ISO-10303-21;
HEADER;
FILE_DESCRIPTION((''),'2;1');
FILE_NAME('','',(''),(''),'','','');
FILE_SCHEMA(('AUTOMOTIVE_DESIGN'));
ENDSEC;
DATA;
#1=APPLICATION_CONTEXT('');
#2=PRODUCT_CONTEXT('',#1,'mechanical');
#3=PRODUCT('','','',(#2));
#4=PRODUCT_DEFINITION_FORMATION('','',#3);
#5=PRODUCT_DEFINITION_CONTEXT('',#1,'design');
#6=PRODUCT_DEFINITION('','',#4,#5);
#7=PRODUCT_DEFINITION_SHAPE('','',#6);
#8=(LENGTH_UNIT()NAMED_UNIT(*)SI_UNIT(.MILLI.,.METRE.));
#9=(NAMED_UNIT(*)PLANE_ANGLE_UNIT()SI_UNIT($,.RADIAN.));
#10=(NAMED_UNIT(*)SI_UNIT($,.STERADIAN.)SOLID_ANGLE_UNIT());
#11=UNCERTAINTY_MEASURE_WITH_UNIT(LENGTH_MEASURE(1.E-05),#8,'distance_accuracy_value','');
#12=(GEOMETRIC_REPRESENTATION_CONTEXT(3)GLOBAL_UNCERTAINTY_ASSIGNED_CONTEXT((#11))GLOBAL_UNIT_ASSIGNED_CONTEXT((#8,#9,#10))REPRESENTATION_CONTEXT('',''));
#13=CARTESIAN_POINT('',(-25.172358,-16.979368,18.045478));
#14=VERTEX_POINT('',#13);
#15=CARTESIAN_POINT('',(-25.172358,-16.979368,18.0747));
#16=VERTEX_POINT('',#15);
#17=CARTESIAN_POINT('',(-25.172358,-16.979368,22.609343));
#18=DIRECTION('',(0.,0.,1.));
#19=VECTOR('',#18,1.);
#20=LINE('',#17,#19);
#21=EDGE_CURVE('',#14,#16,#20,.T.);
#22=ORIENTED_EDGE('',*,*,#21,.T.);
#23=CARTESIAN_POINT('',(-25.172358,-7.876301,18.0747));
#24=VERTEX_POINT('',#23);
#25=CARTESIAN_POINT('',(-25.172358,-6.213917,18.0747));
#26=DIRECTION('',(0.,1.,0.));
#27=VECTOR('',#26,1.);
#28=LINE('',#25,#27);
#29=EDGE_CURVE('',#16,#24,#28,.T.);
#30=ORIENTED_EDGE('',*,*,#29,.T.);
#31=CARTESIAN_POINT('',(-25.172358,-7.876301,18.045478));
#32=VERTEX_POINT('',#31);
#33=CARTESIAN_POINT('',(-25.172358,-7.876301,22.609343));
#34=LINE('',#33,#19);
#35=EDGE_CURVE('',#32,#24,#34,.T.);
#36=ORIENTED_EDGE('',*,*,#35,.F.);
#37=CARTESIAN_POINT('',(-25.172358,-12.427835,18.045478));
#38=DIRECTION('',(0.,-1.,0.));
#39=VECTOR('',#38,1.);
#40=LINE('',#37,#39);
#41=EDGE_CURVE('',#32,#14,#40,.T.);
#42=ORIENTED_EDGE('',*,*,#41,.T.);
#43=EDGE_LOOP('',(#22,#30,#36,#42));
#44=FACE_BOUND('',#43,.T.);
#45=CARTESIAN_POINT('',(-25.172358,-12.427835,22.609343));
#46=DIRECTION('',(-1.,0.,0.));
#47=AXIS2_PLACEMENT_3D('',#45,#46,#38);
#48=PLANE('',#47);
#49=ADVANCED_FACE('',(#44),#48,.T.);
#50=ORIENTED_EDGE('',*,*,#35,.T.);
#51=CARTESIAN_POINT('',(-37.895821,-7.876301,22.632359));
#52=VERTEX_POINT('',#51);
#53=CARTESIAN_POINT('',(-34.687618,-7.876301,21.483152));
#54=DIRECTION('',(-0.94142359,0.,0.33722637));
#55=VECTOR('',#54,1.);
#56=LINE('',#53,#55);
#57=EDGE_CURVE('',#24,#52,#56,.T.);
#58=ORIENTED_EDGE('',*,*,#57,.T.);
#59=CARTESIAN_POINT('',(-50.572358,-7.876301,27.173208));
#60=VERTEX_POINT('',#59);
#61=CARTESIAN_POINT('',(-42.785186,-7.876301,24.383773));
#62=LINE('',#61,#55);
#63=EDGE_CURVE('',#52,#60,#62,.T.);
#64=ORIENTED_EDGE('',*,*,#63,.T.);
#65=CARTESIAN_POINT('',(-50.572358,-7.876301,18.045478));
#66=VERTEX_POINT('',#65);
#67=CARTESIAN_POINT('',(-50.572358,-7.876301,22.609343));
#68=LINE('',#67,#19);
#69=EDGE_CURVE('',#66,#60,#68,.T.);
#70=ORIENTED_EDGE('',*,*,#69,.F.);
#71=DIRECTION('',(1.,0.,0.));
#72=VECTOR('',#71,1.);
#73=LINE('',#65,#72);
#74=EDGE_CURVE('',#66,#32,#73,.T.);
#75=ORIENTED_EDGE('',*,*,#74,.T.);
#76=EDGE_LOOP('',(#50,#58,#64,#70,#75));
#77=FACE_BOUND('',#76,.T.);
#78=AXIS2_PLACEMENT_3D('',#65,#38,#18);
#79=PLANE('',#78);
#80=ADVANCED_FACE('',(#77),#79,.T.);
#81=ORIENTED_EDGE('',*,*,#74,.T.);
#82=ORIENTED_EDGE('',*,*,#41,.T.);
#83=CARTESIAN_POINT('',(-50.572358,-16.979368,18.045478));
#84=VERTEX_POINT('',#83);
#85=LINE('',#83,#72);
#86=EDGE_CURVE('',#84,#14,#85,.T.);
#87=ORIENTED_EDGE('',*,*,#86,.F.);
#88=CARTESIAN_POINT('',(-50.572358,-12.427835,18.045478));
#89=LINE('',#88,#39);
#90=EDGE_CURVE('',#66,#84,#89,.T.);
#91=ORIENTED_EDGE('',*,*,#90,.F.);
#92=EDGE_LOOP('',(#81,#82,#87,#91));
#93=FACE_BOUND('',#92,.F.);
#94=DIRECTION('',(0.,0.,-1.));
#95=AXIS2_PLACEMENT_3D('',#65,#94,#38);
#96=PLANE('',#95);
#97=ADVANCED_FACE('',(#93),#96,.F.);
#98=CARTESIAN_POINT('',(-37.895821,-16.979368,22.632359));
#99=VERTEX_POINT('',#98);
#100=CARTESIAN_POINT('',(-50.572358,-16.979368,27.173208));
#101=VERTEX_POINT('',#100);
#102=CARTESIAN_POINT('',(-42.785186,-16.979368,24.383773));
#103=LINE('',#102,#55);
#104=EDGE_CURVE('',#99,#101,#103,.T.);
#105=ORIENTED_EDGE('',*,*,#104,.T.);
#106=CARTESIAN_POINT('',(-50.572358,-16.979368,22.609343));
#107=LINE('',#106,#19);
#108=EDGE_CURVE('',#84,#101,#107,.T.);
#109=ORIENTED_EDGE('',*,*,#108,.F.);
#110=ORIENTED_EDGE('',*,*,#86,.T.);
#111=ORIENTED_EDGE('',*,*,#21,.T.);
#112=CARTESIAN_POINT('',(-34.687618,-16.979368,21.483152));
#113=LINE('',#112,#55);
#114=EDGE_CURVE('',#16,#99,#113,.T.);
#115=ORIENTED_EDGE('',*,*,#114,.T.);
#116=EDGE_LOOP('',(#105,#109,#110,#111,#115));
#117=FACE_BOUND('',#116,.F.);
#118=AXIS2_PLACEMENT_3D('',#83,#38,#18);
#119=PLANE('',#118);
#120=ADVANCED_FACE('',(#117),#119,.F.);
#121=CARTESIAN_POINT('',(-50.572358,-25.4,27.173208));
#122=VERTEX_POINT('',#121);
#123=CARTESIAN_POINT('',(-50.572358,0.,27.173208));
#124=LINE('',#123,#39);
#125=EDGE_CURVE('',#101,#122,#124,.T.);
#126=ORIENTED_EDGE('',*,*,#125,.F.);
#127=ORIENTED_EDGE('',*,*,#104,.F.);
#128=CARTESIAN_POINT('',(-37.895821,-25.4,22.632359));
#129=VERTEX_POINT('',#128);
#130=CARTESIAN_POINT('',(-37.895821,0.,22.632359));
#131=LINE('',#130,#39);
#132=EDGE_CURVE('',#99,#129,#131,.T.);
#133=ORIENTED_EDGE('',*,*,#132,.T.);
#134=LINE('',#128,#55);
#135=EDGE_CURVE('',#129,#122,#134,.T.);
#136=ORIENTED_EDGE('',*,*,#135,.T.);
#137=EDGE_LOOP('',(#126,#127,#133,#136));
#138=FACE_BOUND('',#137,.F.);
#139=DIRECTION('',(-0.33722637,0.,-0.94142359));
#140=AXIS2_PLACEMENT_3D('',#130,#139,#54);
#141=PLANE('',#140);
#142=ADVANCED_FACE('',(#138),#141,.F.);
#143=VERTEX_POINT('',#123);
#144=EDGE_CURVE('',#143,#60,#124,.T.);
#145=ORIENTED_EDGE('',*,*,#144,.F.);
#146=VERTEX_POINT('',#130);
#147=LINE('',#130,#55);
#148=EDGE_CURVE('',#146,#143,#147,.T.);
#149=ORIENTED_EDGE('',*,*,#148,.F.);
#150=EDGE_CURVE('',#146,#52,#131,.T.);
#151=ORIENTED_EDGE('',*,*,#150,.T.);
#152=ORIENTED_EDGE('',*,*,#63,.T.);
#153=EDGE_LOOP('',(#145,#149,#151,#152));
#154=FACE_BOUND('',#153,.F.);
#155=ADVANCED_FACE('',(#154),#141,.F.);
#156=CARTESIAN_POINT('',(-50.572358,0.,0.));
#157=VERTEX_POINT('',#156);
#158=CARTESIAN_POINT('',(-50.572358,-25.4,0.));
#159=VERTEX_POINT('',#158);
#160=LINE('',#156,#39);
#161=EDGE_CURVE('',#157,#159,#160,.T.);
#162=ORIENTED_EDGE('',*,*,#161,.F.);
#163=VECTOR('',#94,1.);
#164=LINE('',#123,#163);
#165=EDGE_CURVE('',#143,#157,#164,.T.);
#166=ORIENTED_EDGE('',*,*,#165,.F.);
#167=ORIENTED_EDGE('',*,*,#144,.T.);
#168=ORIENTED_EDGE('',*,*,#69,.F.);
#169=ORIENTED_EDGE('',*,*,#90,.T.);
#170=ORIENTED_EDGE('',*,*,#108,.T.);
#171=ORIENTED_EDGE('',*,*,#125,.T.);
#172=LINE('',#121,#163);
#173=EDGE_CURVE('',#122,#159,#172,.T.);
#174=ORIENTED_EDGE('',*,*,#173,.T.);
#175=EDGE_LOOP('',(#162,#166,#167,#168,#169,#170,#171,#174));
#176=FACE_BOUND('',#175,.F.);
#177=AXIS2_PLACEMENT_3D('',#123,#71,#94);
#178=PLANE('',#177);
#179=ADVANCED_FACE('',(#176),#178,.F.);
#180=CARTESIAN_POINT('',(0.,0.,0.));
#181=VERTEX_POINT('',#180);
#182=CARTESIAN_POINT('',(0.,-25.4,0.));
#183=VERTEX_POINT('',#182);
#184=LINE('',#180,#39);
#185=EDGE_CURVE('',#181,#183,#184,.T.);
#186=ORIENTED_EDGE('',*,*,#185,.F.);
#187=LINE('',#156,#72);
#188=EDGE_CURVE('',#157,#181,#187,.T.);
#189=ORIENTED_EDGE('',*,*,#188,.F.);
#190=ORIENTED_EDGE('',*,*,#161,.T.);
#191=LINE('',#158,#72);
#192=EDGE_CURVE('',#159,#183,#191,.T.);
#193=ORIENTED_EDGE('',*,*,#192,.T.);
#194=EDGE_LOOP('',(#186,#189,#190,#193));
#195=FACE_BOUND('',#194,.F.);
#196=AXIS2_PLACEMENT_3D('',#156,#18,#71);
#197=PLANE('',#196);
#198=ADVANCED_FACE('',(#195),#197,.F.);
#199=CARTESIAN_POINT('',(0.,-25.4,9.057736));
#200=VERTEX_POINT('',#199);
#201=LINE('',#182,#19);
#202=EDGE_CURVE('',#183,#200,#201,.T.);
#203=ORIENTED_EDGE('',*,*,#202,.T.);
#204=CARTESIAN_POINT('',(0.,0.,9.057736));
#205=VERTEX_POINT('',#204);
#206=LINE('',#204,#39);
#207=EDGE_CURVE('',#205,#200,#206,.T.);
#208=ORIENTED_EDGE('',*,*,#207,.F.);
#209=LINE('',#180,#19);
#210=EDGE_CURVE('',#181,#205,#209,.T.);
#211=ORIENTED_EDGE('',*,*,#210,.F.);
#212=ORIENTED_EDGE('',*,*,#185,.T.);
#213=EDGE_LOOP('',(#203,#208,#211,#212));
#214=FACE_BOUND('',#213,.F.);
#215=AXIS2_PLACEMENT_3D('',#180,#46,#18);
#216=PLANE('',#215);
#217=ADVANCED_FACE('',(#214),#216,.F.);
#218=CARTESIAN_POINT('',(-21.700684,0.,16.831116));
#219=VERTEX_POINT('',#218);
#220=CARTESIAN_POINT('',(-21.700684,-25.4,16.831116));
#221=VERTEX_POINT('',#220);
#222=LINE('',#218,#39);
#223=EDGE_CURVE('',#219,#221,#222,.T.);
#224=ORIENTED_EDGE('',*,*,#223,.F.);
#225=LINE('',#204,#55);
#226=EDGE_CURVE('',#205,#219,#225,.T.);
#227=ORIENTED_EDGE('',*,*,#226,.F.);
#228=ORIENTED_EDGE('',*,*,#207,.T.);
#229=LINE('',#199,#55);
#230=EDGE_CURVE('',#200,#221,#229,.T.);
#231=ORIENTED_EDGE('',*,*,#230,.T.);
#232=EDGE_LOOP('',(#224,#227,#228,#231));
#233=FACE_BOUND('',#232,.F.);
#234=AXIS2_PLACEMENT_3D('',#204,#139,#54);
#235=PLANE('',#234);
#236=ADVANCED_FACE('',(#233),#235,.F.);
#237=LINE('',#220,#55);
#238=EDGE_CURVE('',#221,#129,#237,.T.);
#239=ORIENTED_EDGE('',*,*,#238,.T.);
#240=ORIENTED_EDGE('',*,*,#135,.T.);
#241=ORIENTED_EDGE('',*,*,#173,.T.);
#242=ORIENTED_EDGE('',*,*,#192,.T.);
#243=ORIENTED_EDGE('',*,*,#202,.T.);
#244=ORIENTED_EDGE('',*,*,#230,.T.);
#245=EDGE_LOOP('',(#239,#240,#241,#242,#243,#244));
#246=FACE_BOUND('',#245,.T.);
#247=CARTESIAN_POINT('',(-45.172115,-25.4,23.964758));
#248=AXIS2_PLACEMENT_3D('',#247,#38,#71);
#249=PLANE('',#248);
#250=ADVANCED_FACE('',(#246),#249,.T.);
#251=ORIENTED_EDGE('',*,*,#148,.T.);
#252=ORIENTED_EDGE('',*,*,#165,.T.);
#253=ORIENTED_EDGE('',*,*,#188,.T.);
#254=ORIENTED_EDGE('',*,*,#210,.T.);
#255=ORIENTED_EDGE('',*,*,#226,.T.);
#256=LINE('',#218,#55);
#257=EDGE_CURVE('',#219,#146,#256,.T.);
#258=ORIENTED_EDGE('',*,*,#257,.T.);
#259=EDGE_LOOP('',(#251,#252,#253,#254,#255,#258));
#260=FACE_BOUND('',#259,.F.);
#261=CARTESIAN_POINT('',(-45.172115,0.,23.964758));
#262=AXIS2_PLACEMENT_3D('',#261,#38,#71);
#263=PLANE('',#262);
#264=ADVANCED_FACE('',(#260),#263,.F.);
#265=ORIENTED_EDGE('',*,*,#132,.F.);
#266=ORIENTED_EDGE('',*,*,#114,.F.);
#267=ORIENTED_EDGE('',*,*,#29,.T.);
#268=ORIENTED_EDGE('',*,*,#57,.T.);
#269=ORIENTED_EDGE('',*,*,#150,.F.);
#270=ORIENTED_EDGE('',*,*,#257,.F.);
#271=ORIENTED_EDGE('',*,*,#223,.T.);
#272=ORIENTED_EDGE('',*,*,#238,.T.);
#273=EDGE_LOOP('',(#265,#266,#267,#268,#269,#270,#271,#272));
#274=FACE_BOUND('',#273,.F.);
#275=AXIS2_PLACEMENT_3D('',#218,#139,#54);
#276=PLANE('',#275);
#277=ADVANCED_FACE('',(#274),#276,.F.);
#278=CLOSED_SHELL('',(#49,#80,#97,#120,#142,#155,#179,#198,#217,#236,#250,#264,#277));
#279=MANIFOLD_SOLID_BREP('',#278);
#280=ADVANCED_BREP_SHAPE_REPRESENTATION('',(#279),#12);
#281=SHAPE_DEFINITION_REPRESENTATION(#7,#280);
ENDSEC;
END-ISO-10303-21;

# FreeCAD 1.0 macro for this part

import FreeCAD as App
import Part
import Sketcher
from FreeCAD import Vector
Q = App.Units.Quantity

doc = App.newDocument("Part")
body = doc.addObject("PartDesign::Body", "Body")

# Sketch on XZ plane
sketch1 = doc.addObject("Sketcher::SketchObject", "Sketch")
body.addObject(sketch1)
sketch1.AttachmentSupport = (doc.XZ_Plane, [""])
sketch1.MapMode = "FlatFace"
sketch1.addGeometry(Part.LineSegment(Vector(-51, 27, 0), Vector(-51, 0, 0)), False)
sketch1.addGeometry(Part.LineSegment(Vector(-51, 0, 0), Vector(0, 0, 0)), False)
sketch1.addGeometry(Part.LineSegment(Vector(0, 0, 0), Vector(0, 9, 0)), False)
sketch1.addGeometry(Part.LineSegment(Vector(0, 9, 0), Vector(-22, 17, 0)), False)
sketch1.addGeometry(Part.LineSegment(Vector(-22, 17, 0), Vector(-38, 23, 0)), False)
sketch1.addGeometry(Part.LineSegment(Vector(-38, 23, 0), Vector(-51, 27, 0)), False)
sketch1.addConstraint(Sketcher.Constraint("Coincident", 0, 2, 1, 1))
sketch1.addConstraint(Sketcher.Constraint("Coincident", 1, 2, 2, 1))
sketch1.addConstraint(Sketcher.Constraint("Coincident", 2, 2, 3, 1))
sketch1.addConstraint(Sketcher.Constraint("Coincident", 3, 2, 4, 1))
sketch1.addConstraint(Sketcher.Constraint("Coincident", 4, 2, 5, 1))
sketch1.addConstraint(Sketcher.Constraint("Coincident", 5, 2, 0, 1))
sketch1.addConstraint(Sketcher.Constraint("Vertical", 0))
sketch1.addConstraint(Sketcher.Constraint("Horizontal", 1))
sketch1.addConstraint(Sketcher.Constraint("Vertical", 2))
sketch1.addConstraint(Sketcher.Constraint("Coincident", 1, 2, -1, 1))
sketch1.addConstraint(Sketcher.Constraint("Parallel", 3, 4))
sketch1.addConstraint(Sketcher.Constraint("Parallel", 4, 5))
sketch1.addConstraint(Sketcher.Constraint("DistanceX", 1, 1, 1, 2, Q("50.572358 mm")))
sketch1.addConstraint(Sketcher.Constraint("DistanceY", 0, 2, 0, 1, Q("27.173208 mm")))
sketch1.addConstraint(Sketcher.Constraint("DistanceY", 2, 1, 2, 2, Q("9.057736 mm")))
sketch1.addConstraint(Sketcher.Constraint("DistanceX", 4, 2, -1, 1, Q("37.895821 mm")))
sketch1.addConstraint(Sketcher.Constraint("DistanceY", 2, 2, 3, 2, Q("7.773379 mm")))
pad1 = doc.addObject("PartDesign::Pad", "Pad")
body.addObject(pad1)
pad1.Profile = sketch1
pad1.Length = Q("1 in")

# Sketch on YZ plane
sketch2 = doc.addObject("Sketcher::SketchObject", "Sketch001")
body.addObject(sketch2)
sketch2.AttachmentSupport = (doc.YZ_Plane, [""])
sketch2.MapMode = "FlatFace"
sketch2.AttachmentOffset = App.Placement(Vector(0, 0, -50.572358), App.Rotation())
sketch2.addGeometry(Part.LineSegment(Vector(-8, 27, 0), Vector(-8, 18, 0)), False)
sketch2.addGeometry(Part.LineSegment(Vector(-8, 18, 0), Vector(-17, 18, 0)), False)
sketch2.addGeometry(Part.LineSegment(Vector(-17, 18, 0), Vector(-17, 27, 0)), False)
sketch2.addGeometry(Part.LineSegment(Vector(-17, 27, 0), Vector(-8, 27, 0)), False)
sketch2.addConstraint(Sketcher.Constraint("Coincident", 0, 2, 1, 1))
sketch2.addConstraint(Sketcher.Constraint("Coincident", 1, 2, 2, 1))
sketch2.addConstraint(Sketcher.Constraint("Coincident", 2, 2, 3, 1))
sketch2.addConstraint(Sketcher.Constraint("Coincident", 3, 2, 0, 1))
sketch2.addConstraint(Sketcher.Constraint("Vertical", 0))
sketch2.addConstraint(Sketcher.Constraint("Horizontal", 1))
sketch2.addConstraint(Sketcher.Constraint("Vertical", 2))
sketch2.addConstraint(Sketcher.Constraint("Horizontal", 3))
sketch2.addConstraint(Sketcher.Constraint("DistanceY", 0, 2, 0, 1, Q("9.127731 mm")))
sketch2.addConstraint(Sketcher.Constraint("DistanceX", 0, 2, -1, 1, Q("7.876301 mm")))
sketch2.addConstraint(Sketcher.Constraint("DistanceX", 1, 2, 1, 1, Q("9.103067 mm")))
sketch2.addConstraint(Sketcher.Constraint("DistanceY", -1, 1, 2, 2, Q("27.173208 mm")))
pocket1 = doc.addObject("PartDesign::Pocket", "Pocket")
body.addObject(pocket1)
pocket1.Profile = sketch2
pocket1.Length = Q("1 in")
pocket1.Reversed = True

doc.recompute()
